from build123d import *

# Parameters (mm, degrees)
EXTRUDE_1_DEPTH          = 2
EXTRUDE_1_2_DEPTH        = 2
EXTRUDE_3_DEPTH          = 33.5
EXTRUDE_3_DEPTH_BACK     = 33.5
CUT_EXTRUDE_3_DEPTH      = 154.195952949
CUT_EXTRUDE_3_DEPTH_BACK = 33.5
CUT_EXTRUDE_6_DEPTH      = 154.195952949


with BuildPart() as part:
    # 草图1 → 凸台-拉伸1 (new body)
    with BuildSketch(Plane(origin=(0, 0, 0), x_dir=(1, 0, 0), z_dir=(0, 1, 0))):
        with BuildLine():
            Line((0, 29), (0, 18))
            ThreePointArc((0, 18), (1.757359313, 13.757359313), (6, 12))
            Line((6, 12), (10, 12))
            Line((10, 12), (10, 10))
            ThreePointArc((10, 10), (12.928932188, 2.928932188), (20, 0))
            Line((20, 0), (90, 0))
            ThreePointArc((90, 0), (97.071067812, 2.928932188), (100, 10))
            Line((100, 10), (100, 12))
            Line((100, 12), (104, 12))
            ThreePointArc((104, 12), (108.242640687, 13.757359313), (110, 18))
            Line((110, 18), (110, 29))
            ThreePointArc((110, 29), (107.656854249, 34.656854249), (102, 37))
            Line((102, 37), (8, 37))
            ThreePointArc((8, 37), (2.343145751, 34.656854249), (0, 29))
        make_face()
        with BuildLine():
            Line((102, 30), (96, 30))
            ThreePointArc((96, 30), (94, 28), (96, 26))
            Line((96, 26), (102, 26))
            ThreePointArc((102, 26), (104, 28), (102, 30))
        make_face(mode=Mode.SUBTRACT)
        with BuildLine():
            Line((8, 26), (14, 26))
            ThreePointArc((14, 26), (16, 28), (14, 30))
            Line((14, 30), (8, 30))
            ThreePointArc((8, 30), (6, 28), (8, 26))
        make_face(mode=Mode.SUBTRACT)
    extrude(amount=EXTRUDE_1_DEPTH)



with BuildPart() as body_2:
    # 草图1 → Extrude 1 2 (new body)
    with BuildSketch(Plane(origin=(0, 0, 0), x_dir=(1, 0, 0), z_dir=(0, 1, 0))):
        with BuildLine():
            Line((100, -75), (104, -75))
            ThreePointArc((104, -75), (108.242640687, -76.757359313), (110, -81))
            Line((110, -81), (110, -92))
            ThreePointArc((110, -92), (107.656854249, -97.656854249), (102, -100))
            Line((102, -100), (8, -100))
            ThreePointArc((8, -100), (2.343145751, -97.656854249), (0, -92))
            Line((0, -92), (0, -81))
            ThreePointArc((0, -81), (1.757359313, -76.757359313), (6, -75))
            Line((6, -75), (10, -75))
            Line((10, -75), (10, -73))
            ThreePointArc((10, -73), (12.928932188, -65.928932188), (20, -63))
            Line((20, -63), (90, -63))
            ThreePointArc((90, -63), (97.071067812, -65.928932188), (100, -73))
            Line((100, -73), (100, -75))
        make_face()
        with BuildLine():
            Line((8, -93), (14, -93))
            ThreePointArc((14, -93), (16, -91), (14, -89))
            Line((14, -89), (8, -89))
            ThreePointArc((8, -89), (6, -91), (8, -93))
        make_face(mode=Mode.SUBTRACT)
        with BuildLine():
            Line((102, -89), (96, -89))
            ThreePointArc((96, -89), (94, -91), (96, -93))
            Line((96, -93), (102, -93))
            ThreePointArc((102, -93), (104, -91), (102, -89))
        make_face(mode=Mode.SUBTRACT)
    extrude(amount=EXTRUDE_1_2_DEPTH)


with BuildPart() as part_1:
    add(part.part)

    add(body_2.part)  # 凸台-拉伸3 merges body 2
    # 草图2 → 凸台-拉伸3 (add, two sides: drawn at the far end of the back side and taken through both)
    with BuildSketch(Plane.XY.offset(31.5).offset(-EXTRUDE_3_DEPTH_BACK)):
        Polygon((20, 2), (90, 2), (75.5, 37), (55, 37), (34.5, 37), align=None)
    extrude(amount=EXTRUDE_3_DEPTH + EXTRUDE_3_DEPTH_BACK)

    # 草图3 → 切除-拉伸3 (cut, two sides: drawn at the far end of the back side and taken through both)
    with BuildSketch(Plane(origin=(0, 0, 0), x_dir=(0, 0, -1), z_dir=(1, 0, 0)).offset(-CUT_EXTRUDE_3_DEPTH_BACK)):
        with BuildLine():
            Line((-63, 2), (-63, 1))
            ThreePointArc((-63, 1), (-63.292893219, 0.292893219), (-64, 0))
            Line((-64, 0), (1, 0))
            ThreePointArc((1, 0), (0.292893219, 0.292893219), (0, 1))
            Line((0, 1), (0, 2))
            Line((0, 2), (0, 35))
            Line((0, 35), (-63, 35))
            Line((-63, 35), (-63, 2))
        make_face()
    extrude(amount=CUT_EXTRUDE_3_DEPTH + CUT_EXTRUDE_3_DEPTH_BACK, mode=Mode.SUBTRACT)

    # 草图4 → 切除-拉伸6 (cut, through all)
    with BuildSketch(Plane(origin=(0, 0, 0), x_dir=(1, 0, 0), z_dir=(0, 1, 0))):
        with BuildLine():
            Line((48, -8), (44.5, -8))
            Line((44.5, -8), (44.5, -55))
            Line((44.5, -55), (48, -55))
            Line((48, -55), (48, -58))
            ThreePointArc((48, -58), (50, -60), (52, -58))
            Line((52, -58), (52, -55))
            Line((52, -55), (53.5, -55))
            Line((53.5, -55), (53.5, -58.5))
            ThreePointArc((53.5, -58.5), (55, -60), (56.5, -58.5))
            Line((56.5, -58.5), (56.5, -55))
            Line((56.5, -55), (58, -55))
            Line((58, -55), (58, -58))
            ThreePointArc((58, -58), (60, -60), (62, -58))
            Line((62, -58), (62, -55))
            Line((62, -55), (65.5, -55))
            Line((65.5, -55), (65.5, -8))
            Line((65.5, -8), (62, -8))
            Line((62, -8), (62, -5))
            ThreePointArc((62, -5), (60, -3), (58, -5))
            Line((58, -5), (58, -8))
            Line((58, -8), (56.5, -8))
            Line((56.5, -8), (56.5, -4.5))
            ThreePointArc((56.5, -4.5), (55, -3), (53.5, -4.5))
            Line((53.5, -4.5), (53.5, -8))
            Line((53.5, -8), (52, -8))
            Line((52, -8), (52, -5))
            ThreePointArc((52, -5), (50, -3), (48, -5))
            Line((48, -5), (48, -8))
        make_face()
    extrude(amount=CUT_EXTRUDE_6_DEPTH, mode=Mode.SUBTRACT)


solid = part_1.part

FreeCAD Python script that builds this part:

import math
import FreeCAD as App
import Part
import Sketcher

V = App.Vector


def add_polygon(sketch, points):
    """Adds a closed chain of lines whose ends are joined by coincident constraints."""
    first, n = sketch.GeometryCount, len(points)
    for a, b in zip(points, points[1:] + points[:1]):
        sketch.addGeometry(Part.LineSegment(App.Vector(*a, 0), App.Vector(*b, 0)), False)
    for i in range(n):
        sketch.addConstraint(Sketcher.Constraint("Coincident", first + i, 2, first + (i + 1) % n, 1))

doc = App.newDocument("Part")
params = doc.addObject("Spreadsheet::Sheet", "Params")
for row, (alias, value) in enumerate([
    ("sketch1_radius", "6 mm"),
    ("sketch1_radius2", "10 mm"),
    ("sketch1_radius3", "8 mm"),
    ("sketch1_radius4", "2 mm"),
    ("sketch1_width", "4 mm"),
    ("pad1_length", "2 mm"),
    ("sketch2_radius", "10 mm"),
    ("sketch2_radius2", "6 mm"),
    ("sketch2_radius3", "8 mm"),
    ("sketch2_radius4", "2 mm"),
    ("sketch2_width", "4 mm"),
    ("pad2_length", "2 mm"),
    ("sketch3_width", "70 mm"),
    ("sketch3_width2", "41 mm"),
    ("pad3_length", "33.5 mm"),
    ("pad3_length2", "33.5 mm"),
    ("sketch4_radius", "1 mm"),
    ("sketch4_width", "34 mm"),
    ("sketch4_height", "65 mm"),
    ("sketch5_radius", "2 mm"),
    ("sketch5_radius2", "1.5 mm"),
    ("sketch5_height", "47 mm"),
    ("sketch5_height2", "3 mm"),
    ("sketch5_width", "3.5 mm"),
], start=1):
    params.set(f"A{row}", alias)
    params.set(f"B{row}", "=" + value)
    params.setAlias(f"B{row}", alias)

body = doc.addObject("PartDesign::Body", "Body")

sketch1 = doc.addObject("Sketcher::SketchObject", "Sketch")
body.addObject(sketch1)
sketch1.AttachmentSupport = (doc.XZ_Plane, [""])
sketch1.MapMode = "FlatFace"
sketch1.addGeometry(Part.LineSegment(V(0, -29, 0), V(0, -18, 0)), False)
sketch1.addGeometry(Part.ArcOfCircle(Part.Circle(V(6, -18, 0), V(0, 0, 1), 6), math.radians(90), math.radians(180)), False)
sketch1.addGeometry(Part.LineSegment(V(6, -12, 0), V(10, -12, 0)), False)
sketch1.addGeometry(Part.LineSegment(V(10, -12, 0), V(10, -10, 0)), False)
sketch1.addGeometry(Part.ArcOfCircle(Part.Circle(V(20, -10, 0), V(0, 0, 1), 10), math.radians(90), math.radians(180)), False)
sketch1.addGeometry(Part.LineSegment(V(20, 0, 0), V(90, 0, 0)), False)
sketch1.addGeometry(Part.ArcOfCircle(Part.Circle(V(90, -10, 0), V(0, 0, 1), 10), math.radians(0), math.radians(90)), False)
sketch1.addGeometry(Part.LineSegment(V(100, -10, 0), V(100, -12, 0)), False)
sketch1.addGeometry(Part.LineSegment(V(100, -12, 0), V(104, -12, 0)), False)
sketch1.addGeometry(Part.ArcOfCircle(Part.Circle(V(104, -18, 0), V(0, 0, 1), 6), math.radians(0), math.radians(90)), False)
sketch1.addGeometry(Part.LineSegment(V(110, -18, 0), V(110, -29, 0)), False)
sketch1.addGeometry(Part.ArcOfCircle(Part.Circle(V(102, -29, 0), V(0, 0, 1), 8), math.radians(-90), math.radians(0)), False)
sketch1.addGeometry(Part.LineSegment(V(102, -37, 0), V(8, -37, 0)), False)
sketch1.addGeometry(Part.ArcOfCircle(Part.Circle(V(8, -29, 0), V(0, 0, 1), 8), math.radians(-180), math.radians(-90)), False)
sketch1.addGeometry(Part.LineSegment(V(14, -26, 0), V(8, -26, 0)), False)
sketch1.addGeometry(Part.ArcOfCircle(Part.Circle(V(8, -28, 0), V(0, 0, 1), 2), math.radians(90), math.radians(270)), False)
sketch1.addGeometry(Part.LineSegment(V(8, -30, 0), V(14, -30, 0)), False)
sketch1.addGeometry(Part.ArcOfCircle(Part.Circle(V(14, -28, 0), V(0, 0, 1), 2), math.radians(-90), math.radians(90)), False)
sketch1.addGeometry(Part.LineSegment(V(96, -30, 0), V(102, -30, 0)), False)
sketch1.addGeometry(Part.ArcOfCircle(Part.Circle(V(102, -28, 0), V(0, 0, 1), 2), math.radians(-90), math.radians(90)), False)
sketch1.addGeometry(Part.LineSegment(V(102, -26, 0), V(96, -26, 0)), False)
sketch1.addGeometry(Part.ArcOfCircle(Part.Circle(V(96, -28, 0), V(0, 0, 1), 2), math.radians(90), math.radians(270)), False)
sketch1.addConstraint(Sketcher.Constraint("Tangent", 0, 2, 1, 2))
sketch1.addConstraint(Sketcher.Constraint("Tangent", 1, 1, 2, 1))
sketch1.addConstraint(Sketcher.Constraint("Coincident", 2, 2, 3, 1))
sketch1.addConstraint(Sketcher.Constraint("Tangent", 3, 2, 4, 2))
sketch1.addConstraint(Sketcher.Constraint("Tangent", 4, 1, 5, 1))
sketch1.addConstraint(Sketcher.Constraint("Tangent", 5, 2, 6, 2))
sketch1.addConstraint(Sketcher.Constraint("Tangent", 6, 1, 7, 1))
sketch1.addConstraint(Sketcher.Constraint("Coincident", 7, 2, 8, 1))
sketch1.addConstraint(Sketcher.Constraint("Tangent", 8, 2, 9, 2))
sketch1.addConstraint(Sketcher.Constraint("Tangent", 9, 1, 10, 1))
sketch1.addConstraint(Sketcher.Constraint("Tangent", 10, 2, 11, 2))
sketch1.addConstraint(Sketcher.Constraint("Tangent", 11, 1, 12, 1))
sketch1.addConstraint(Sketcher.Constraint("Tangent", 12, 2, 13, 2))
sketch1.addConstraint(Sketcher.Constraint("Tangent", 13, 1, 0, 1))
sketch1.addConstraint(Sketcher.Constraint("Tangent", 14, 2, 15, 1))
sketch1.addConstraint(Sketcher.Constraint("Tangent", 15, 2, 16, 1))
sketch1.addConstraint(Sketcher.Constraint("Tangent", 16, 2, 17, 1))
sketch1.addConstraint(Sketcher.Constraint("Tangent", 17, 2, 14, 1))
sketch1.addConstraint(Sketcher.Constraint("Tangent", 18, 2, 19, 1))
sketch1.addConstraint(Sketcher.Constraint("Tangent", 19, 2, 20, 1))
sketch1.addConstraint(Sketcher.Constraint("Tangent", 20, 2, 21, 1))
sketch1.addConstraint(Sketcher.Constraint("Tangent", 21, 2, 18, 1))
sketch1.addConstraint(Sketcher.Constraint("Vertical", 0))
sketch1.addConstraint(Sketcher.Constraint("Horizontal", 2))
sketch1.addConstraint(Sketcher.Constraint("Vertical", 3))
sketch1.addConstraint(Sketcher.Constraint("Horizontal", 5))
sketch1.addConstraint(Sketcher.Constraint("Vertical", 7))
sketch1.addConstraint(Sketcher.Constraint("Horizontal", 8))
sketch1.addConstraint(Sketcher.Constraint("Vertical", 10))
sketch1.addConstraint(Sketcher.Constraint("Horizontal", 12))
sketch1.addConstraint(Sketcher.Constraint("Horizontal", 14))
sketch1.addConstraint(Sketcher.Constraint("Horizontal", 16))
sketch1.addConstraint(Sketcher.Constraint("Horizontal", 18))
sketch1.addConstraint(Sketcher.Constraint("Horizontal", 20))
sketch1.addConstraint(Sketcher.Constraint("Equal", 4, 6))
sketch1.addConstraint(Sketcher.Constraint("Equal", 1, 9))
sketch1.addConstraint(Sketcher.Constraint("Equal", 11, 13))
sketch1.addConstraint(Sketcher.Constraint("Equal", 17, 19))
sketch1.addConstraint(Sketcher.Constraint("PointOnObject", 0, 2, -2))
sketch1.addConstraint(Sketcher.Constraint("PointOnObject", 4, 1, -1))
sketch1.addConstraint(Sketcher.Constraint("Horizontal", 1, 3, 9, 3))
sketch1.addConstraint(Sketcher.Constraint("Horizontal", 17, 3, 19, 3))
sketch1.addConstraint(Sketcher.Constraint("Vertical", 13, 3, 15, 3))
sketch1.addConstraint(Sketcher.Constraint("Vertical", 11, 3, 19, 3))
sketch1.addConstraint(Sketcher.Constraint("Equal", 2, 8))
sketch1.addConstraint(Sketcher.Constraint("Equal", 16, 18))
sketch1.addConstraint(Sketcher.Constraint("Radius", 1, 6.0))
sketch1.addConstraint(Sketcher.Constraint("Radius", 4, 10.0))
sketch1.addConstraint(Sketcher.Constraint("Radius", 11, 8.0))
sketch1.addConstraint(Sketcher.Constraint("Radius", 15, 2.0))
sketch1.addConstraint(Sketcher.Constraint("DistanceX", 2, 1, 2, 2, 4.0))
sketch1.addConstraint(Sketcher.Constraint("DistanceX", 5, 1, 5, 2, 70.0))
sketch1.addConstraint(Sketcher.Constraint("DistanceX", 14, 2, 14, 1, 6.0))
sketch1.addConstraint(Sketcher.Constraint("DistanceY", 0, 1, 0, 2, 11.0))
sketch1.addConstraint(Sketcher.Constraint("DistanceY", 3, 1, 3, 2, 2.0))
sketch1.addConstraint(Sketcher.Constraint("DistanceY", 15, 3, -1, 1, 28.0))
sketch1.setExpression("Constraints[46]", "Params.sketch1_radius")
sketch1.setExpression("Constraints[47]", "Params.sketch1_radius2")
sketch1.setExpression("Constraints[48]", "Params.sketch1_radius3")
sketch1.setExpression("Constraints[49]", "Params.sketch1_radius4")
sketch1.setExpression("Constraints[50]", "Params.sketch1_width")
pad1 = doc.addObject("PartDesign::Pad", "Pad")
body.addObject(pad1)
pad1.Profile = sketch1
pad1.setExpression("Length", "Params.pad1_length")
pad1.Reversed = True
body2 = doc.addObject("PartDesign::Body", "Body001")

sketch2 = doc.addObject("Sketcher::SketchObject", "Sketch001")
body2.addObject(sketch2)
sketch2.AttachmentSupport = (doc.getObject("XZ_Plane001"), [""])
sketch2.MapMode = "FlatFace"
sketch2.addGeometry(Part.LineSegment(V(104, 75, 0), V(100, 75, 0)), False)
sketch2.addGeometry(Part.LineSegment(V(100, 75, 0), V(100, 73, 0)), False)
sketch2.addGeometry(Part.ArcOfCircle(Part.Circle(V(90, 73, 0), V(0, 0, 1), 10), math.radians(-90), math.radians(0)), False)
sketch2.addGeometry(Part.LineSegment(V(90, 63, 0), V(20, 63, 0)), False)
sketch2.addGeometry(Part.ArcOfCircle(Part.Circle(V(20, 73, 0), V(0, 0, 1), 10), math.radians(180), math.radians(270)), False)
sketch2.addGeometry(Part.LineSegment(V(10, 73, 0), V(10, 75, 0)), False)
sketch2.addGeometry(Part.LineSegment(V(10, 75, 0), V(6, 75, 0)), False)
sketch2.addGeometry(Part.ArcOfCircle(Part.Circle(V(6, 81, 0), V(0, 0, 1), 6), math.radians(180), math.radians(270)), False)
sketch2.addGeometry(Part.LineSegment(V(0, 81, 0), V(0, 92, 0)), False)
sketch2.addGeometry(Part.ArcOfCircle(Part.Circle(V(8, 92, 0), V(0, 0, 1), 8), math.radians(90), math.radians(180)), False)
sketch2.addGeometry(Part.LineSegment(V(8, 100, 0), V(102, 100, 0)), False)
sketch2.addGeometry(Part.ArcOfCircle(Part.Circle(V(102, 92, 0), V(0, 0, 1), 8), math.radians(0), math.radians(90)), False)
sketch2.addGeometry(Part.LineSegment(V(110, 92, 0), V(110, 81, 0)), False)
sketch2.addGeometry(Part.ArcOfCircle(Part.Circle(V(104, 81, 0), V(0, 0, 1), 6), math.radians(-90), math.radians(0)), False)
sketch2.addGeometry(Part.ArcOfCircle(Part.Circle(V(102, 91, 0), V(0, 0, 1), 2), math.radians(-90), math.radians(90)), False)
sketch2.addGeometry(Part.LineSegment(V(102, 93, 0), V(96, 93, 0)), False)
sketch2.addGeometry(Part.ArcOfCircle(Part.Circle(V(96, 91, 0), V(0, 0, 1), 2), math.radians(90), math.radians(270)), False)
sketch2.addGeometry(Part.LineSegment(V(96, 89, 0), V(102, 89, 0)), False)
sketch2.addGeometry(Part.ArcOfCircle(Part.Circle(V(8, 91, 0), V(0, 0, 1), 2), math.radians(90), math.radians(270)), False)
sketch2.addGeometry(Part.LineSegment(V(8, 89, 0), V(14, 89, 0)), False)
sketch2.addGeometry(Part.ArcOfCircle(Part.Circle(V(14, 91, 0), V(0, 0, 1), 2), math.radians(-90), math.radians(90)), False)
sketch2.addGeometry(Part.LineSegment(V(14, 93, 0), V(8, 93, 0)), False)
sketch2.addConstraint(Sketcher.Constraint("Coincident", 0, 2, 1, 1))
sketch2.addConstraint(Sketcher.Constraint("Tangent", 1, 2, 2, 2))
sketch2.addConstraint(Sketcher.Constraint("Tangent", 2, 1, 3, 1))
sketch2.addConstraint(Sketcher.Constraint("Tangent", 3, 2, 4, 2))
sketch2.addConstraint(Sketcher.Constraint("Tangent", 4, 1, 5, 1))
sketch2.addConstraint(Sketcher.Constraint("Coincident", 5, 2, 6, 1))
sketch2.addConstraint(Sketcher.Constraint("Tangent", 6, 2, 7, 2))
sketch2.addConstraint(Sketcher.Constraint("Tangent", 7, 1, 8, 1))
sketch2.addConstraint(Sketcher.Constraint("Tangent", 8, 2, 9, 2))
sketch2.addConstraint(Sketcher.Constraint("Tangent", 9, 1, 10, 1))
sketch2.addConstraint(Sketcher.Constraint("Tangent", 10, 2, 11, 2))
sketch2.addConstraint(Sketcher.Constraint("Tangent", 11, 1, 12, 1))
sketch2.addConstraint(Sketcher.Constraint("Tangent", 12, 2, 13, 2))
sketch2.addConstraint(Sketcher.Constraint("Tangent", 13, 1, 0, 1))
sketch2.addConstraint(Sketcher.Constraint("Tangent", 14, 2, 15, 1))
sketch2.addConstraint(Sketcher.Constraint("Tangent", 15, 2, 16, 1))
sketch2.addConstraint(Sketcher.Constraint("Tangent", 16, 2, 17, 1))
sketch2.addConstraint(Sketcher.Constraint("Tangent", 17, 2, 14, 1))
sketch2.addConstraint(Sketcher.Constraint("Tangent", 18, 2, 19, 1))
sketch2.addConstraint(Sketcher.Constraint("Tangent", 19, 2, 20, 1))
sketch2.addConstraint(Sketcher.Constraint("Tangent", 20, 2, 21, 1))
sketch2.addConstraint(Sketcher.Constraint("Tangent", 21, 2, 18, 1))
sketch2.addConstraint(Sketcher.Constraint("Horizontal", 0))
sketch2.addConstraint(Sketcher.Constraint("Vertical", 1))
sketch2.addConstraint(Sketcher.Constraint("Horizontal", 3))
sketch2.addConstraint(Sketcher.Constraint("Vertical", 5))
sketch2.addConstraint(Sketcher.Constraint("Horizontal", 6))
sketch2.addConstraint(Sketcher.Constraint("Vertical", 8))
sketch2.addConstraint(Sketcher.Constraint("Horizontal", 10))
sketch2.addConstraint(Sketcher.Constraint("Vertical", 12))
sketch2.addConstraint(Sketcher.Constraint("Horizontal", 15))
sketch2.addConstraint(Sketcher.Constraint("Horizontal", 17))
sketch2.addConstraint(Sketcher.Constraint("Horizontal", 19))
sketch2.addConstraint(Sketcher.Constraint("Horizontal", 21))
sketch2.addConstraint(Sketcher.Constraint("Equal", 2, 4))
sketch2.addConstraint(Sketcher.Constraint("Equal", 9, 11))
sketch2.addConstraint(Sketcher.Constraint("Equal", 7, 13))
sketch2.addConstraint(Sketcher.Constraint("Equal", 16, 18))
sketch2.addConstraint(Sketcher.Constraint("PointOnObject", 7, 1, -2))
sketch2.addConstraint(Sketcher.Constraint("Horizontal", 7, 3, 13, 3))
sketch2.addConstraint(Sketcher.Constraint("Horizontal", 16, 3, 18, 3))
sketch2.addConstraint(Sketcher.Constraint("Vertical", 11, 3, 14, 3))
sketch2.addConstraint(Sketcher.Constraint("Vertical", 9, 3, 18, 3))
sketch2.addConstraint(Sketcher.Constraint("Equal", 0, 6))
sketch2.addConstraint(Sketcher.Constraint("Equal", 17, 19))
sketch2.addConstraint(Sketcher.Constraint("Radius", 2, 10.0))
sketch2.addConstraint(Sketcher.Constraint("Radius", 7, 6.0))
sketch2.addConstraint(Sketcher.Constraint("Radius", 9, 8.0))
sketch2.addConstraint(Sketcher.Constraint("Radius", 14, 2.0))
sketch2.addConstraint(Sketcher.Constraint("DistanceX", 0, 2, 0, 1, 4.0))
sketch2.addConstraint(Sketcher.Constraint("DistanceX", 3, 2, 3, 1, 70.0))
sketch2.addConstraint(Sketcher.Constraint("DistanceX", 15, 2, 15, 1, 6.0))
sketch2.addConstraint(Sketcher.Constraint("DistanceY", 1, 2, 1, 1, 2.0))
sketch2.addConstraint(Sketcher.Constraint("DistanceY", 8, 1, 8, 2, 11.0))
sketch2.addConstraint(Sketcher.Constraint("DistanceY", -1, 1, 2, 3, 73.0))
sketch2.addConstraint(Sketcher.Constraint("DistanceY", -1, 1, 14, 3, 91.0))
sketch2.setExpression("Constraints[45]", "Params.sketch2_radius")
sketch2.setExpression("Constraints[46]", "Params.sketch2_radius2")
sketch2.setExpression("Constraints[47]", "Params.sketch2_radius3")
sketch2.setExpression("Constraints[48]", "Params.sketch2_radius4")
sketch2.setExpression("Constraints[49]", "Params.sketch2_width")
pad2 = doc.addObject("PartDesign::Pad", "Pad001")
body2.addObject(pad2)
pad2.Profile = sketch2
pad2.setExpression("Length", "Params.pad2_length")
pad2.Reversed = True
body.AllowCompound = True
doc.recompute()

boolean = doc.addObject("PartDesign::Boolean", "Boolean")
body.addObject(boolean)
boolean.Type = "Fuse"
boolean.addObjects([body2])

sketch3 = doc.addObject("Sketcher::SketchObject", "Sketch002")
body.addObject(sketch3)
sketch3.AttachmentSupport = (doc.XY_Plane, [""])
sketch3.MapMode = "FlatFace"
sketch3.AttachmentOffset = App.Placement(V(0, 0, 31.5), App.Rotation())
add_polygon(sketch3, [(20, 2), (90, 2), (76, 37), (34, 37)])
sketch3.addConstraint(Sketcher.Constraint("Horizontal", 0))
sketch3.addConstraint(Sketcher.Constraint("Horizontal", 2))
sketch3.addConstraint(Sketcher.Constraint("Equal", 1, 3))
sketch3.addConstraint(Sketcher.Constraint("DistanceX", 0, 1, 0, 2, 70.0))
sketch3.addConstraint(Sketcher.Constraint("DistanceX", 2, 2, 2, 1, 41.0))
sketch3.addConstraint(Sketcher.Constraint("DistanceX", -1, 1, 0, 2, 90.0))
sketch3.addConstraint(Sketcher.Constraint("DistanceY", -1, 1, 0, 2, 2.0))
sketch3.addConstraint(Sketcher.Constraint("DistanceY", -1, 1, 1, 2, 37.0))
sketch3.setExpression("Constraints[7]", "Params.sketch3_width")
sketch3.setExpression("Constraints[8]", "Params.sketch3_width2")
pad3 = doc.addObject("PartDesign::Pad", "Pad002")
body.addObject(pad3)
pad3.Profile = sketch3
pad3.Type = "TwoLengths"
pad3.setExpression("Length", "Params.pad3_length")
pad3.setExpression("Length2", "Params.pad3_length2")

sketch4 = doc.addObject("Sketcher::SketchObject", "Sketch003")
body.addObject(sketch4)
sketch4.AttachmentSupport = (doc.YZ_Plane, [""])
sketch4.MapMode = "FlatFace"
sketch4.addGeometry(Part.ArcOfCircle(Part.Circle(V(1, 64, 0), V(0, 0, 1), 1), math.radians(-180), math.radians(-90)), False)
sketch4.addGeometry(Part.LineSegment(V(0, 64, 0), V(0, -1, 0)), False)
sketch4.addGeometry(Part.ArcOfCircle(Part.Circle(V(1, -1, 0), V(0, 0, 1), 1), math.radians(90), math.radians(180)), False)
sketch4.addGeometry(Part.LineSegment(V(1, 0, 0), V(35, 0, 0)), False)
sketch4.addGeometry(Part.LineSegment(V(35, 0, 0), V(35, 63, 0)), False)
sketch4.addGeometry(Part.LineSegment(V(35, 63, 0), V(1, 63, 0)), False)
sketch4.addConstraint(Sketcher.Constraint("Tangent", 0, 1, 1, 1))
sketch4.addConstraint(Sketcher.Constraint("Tangent", 1, 2, 2, 2))
sketch4.addConstraint(Sketcher.Constraint("Tangent", 2, 1, 3, 1))
sketch4.addConstraint(Sketcher.Constraint("Coincident", 3, 2, 4, 1))
sketch4.addConstraint(Sketcher.Constraint("Coincident", 4, 2, 5, 1))
sketch4.addConstraint(Sketcher.Constraint("Tangent", 5, 2, 0, 2))
sketch4.addConstraint(Sketcher.Constraint("Vertical", 1))
sketch4.addConstraint(Sketcher.Constraint("Horizontal", 3))
sketch4.addConstraint(Sketcher.Constraint("Vertical", 4))
sketch4.addConstraint(Sketcher.Constraint("Horizontal", 5))
sketch4.addConstraint(Sketcher.Constraint("Equal", 0, 2))
sketch4.addConstraint(Sketcher.Constraint("PointOnObject", 0, 1, -2))
sketch4.addConstraint(Sketcher.Constraint("PointOnObject", 2, 1, -1))
sketch4.addConstraint(Sketcher.Constraint("Radius", 0, 1.0))
sketch4.addConstraint(Sketcher.Constraint("DistanceX", 3, 1, 3, 2, 34.0))
sketch4.addConstraint(Sketcher.Constraint("DistanceY", 1, 2, 1, 1, 65.0))
sketch4.setExpression("Constraints[13]", "Params.sketch4_radius")
sketch4.setExpression("Constraints[14]", "Params.sketch4_width")
sketch4.setExpression("Constraints[15]", "Params.sketch4_height")
pocket1 = doc.addObject("PartDesign::Pocket", "Pocket")
body.addObject(pocket1)
pocket1.Profile = sketch4
pocket1.Type = "ThroughAll"
pocket1.Midplane = True

sketch5 = doc.addObject("Sketcher::SketchObject", "Sketch004")
body.addObject(sketch5)
sketch5.AttachmentSupport = (doc.XZ_Plane, [""])
sketch5.MapMode = "FlatFace"
sketch5.addGeometry(Part.LineSegment(V(48, 8, 0), V(44.5, 8, 0)), False)
sketch5.addGeometry(Part.LineSegment(V(44.5, 8, 0), V(44.5, 55, 0)), False)
sketch5.addGeometry(Part.LineSegment(V(44.5, 55, 0), V(48, 55, 0)), False)
sketch5.addGeometry(Part.LineSegment(V(48, 55, 0), V(48, 58, 0)), False)
sketch5.addGeometry(Part.ArcOfCircle(Part.Circle(V(50, 58, 0), V(0, 0, 1), 2), math.radians(0), math.radians(180)), False)
sketch5.addGeometry(Part.LineSegment(V(52, 58, 0), V(52, 55, 0)), False)
sketch5.addGeometry(Part.LineSegment(V(52, 55, 0), V(53.5, 55, 0)), False)
sketch5.addGeometry(Part.LineSegment(V(53.5, 55, 0), V(53.5, 58.5, 0)), False)
sketch5.addGeometry(Part.ArcOfCircle(Part.Circle(V(55, 58.5, 0), V(0, 0, 1), 1.5), math.radians(0), math.radians(180)), False)
sketch5.addGeometry(Part.LineSegment(V(56.5, 58.5, 0), V(56.5, 55, 0)), False)
sketch5.addGeometry(Part.LineSegment(V(56.5, 55, 0), V(58, 55, 0)), False)
sketch5.addGeometry(Part.LineSegment(V(58, 55, 0), V(58, 58, 0)), False)
sketch5.addGeometry(Part.ArcOfCircle(Part.Circle(V(60, 58, 0), V(0, 0, 1), 2), math.radians(0), math.radians(180)), False)
sketch5.addGeometry(Part.LineSegment(V(62, 58, 0), V(62, 55, 0)), False)
sketch5.addGeometry(Part.LineSegment(V(62, 55, 0), V(65.5, 55, 0)), False)
sketch5.addGeometry(Part.LineSegment(V(65.5, 55, 0), V(65.5, 8, 0)), False)
sketch5.addGeometry(Part.LineSegment(V(65.5, 8, 0), V(62, 8, 0)), False)
sketch5.addGeometry(Part.LineSegment(V(62, 8, 0), V(62, 5, 0)), False)
sketch5.addGeometry(Part.ArcOfCircle(Part.Circle(V(60, 5, 0), V(0, 0, 1), 2), math.radians(180), math.radians(360)), False)
sketch5.addGeometry(Part.LineSegment(V(58, 5, 0), V(58, 8, 0)), False)
sketch5.addGeometry(Part.LineSegment(V(58, 8, 0), V(56.5, 8, 0)), False)
sketch5.addGeometry(Part.LineSegment(V(56.5, 8, 0), V(56.5, 4.5, 0)), False)
sketch5.addGeometry(Part.ArcOfCircle(Part.Circle(V(55, 4.5, 0), V(0, 0, 1), 1.5), math.radians(180), math.radians(360)), False)
sketch5.addGeometry(Part.LineSegment(V(53.5, 4.5, 0), V(53.5, 8, 0)), False)
sketch5.addGeometry(Part.LineSegment(V(53.5, 8, 0), V(52, 8, 0)), False)
sketch5.addGeometry(Part.LineSegment(V(52, 8, 0), V(52, 5, 0)), False)
sketch5.addGeometry(Part.ArcOfCircle(Part.Circle(V(50, 5, 0), V(0, 0, 1), 2), math.radians(180), math.radians(360)), False)
sketch5.addGeometry(Part.LineSegment(V(48, 5, 0), V(48, 8, 0)), False)
sketch5.addConstraint(Sketcher.Constraint("Coincident", 0, 2, 1, 1))
sketch5.addConstraint(Sketcher.Constraint("Coincident", 1, 2, 2, 1))
sketch5.addConstraint(Sketcher.Constraint("Coincident", 2, 2, 3, 1))
sketch5.addConstraint(Sketcher.Constraint("Tangent", 3, 2, 4, 2))
sketch5.addConstraint(Sketcher.Constraint("Tangent", 4, 1, 5, 1))
sketch5.addConstraint(Sketcher.Constraint("Coincident", 5, 2, 6, 1))
sketch5.addConstraint(Sketcher.Constraint("Coincident", 6, 2, 7, 1))
sketch5.addConstraint(Sketcher.Constraint("Tangent", 7, 2, 8, 2))
sketch5.addConstraint(Sketcher.Constraint("Tangent", 8, 1, 9, 1))
sketch5.addConstraint(Sketcher.Constraint("Coincident", 9, 2, 10, 1))
sketch5.addConstraint(Sketcher.Constraint("Coincident", 10, 2, 11, 1))
sketch5.addConstraint(Sketcher.Constraint("Tangent", 11, 2, 12, 2))
sketch5.addConstraint(Sketcher.Constraint("Tangent", 12, 1, 13, 1))
sketch5.addConstraint(Sketcher.Constraint("Coincident", 13, 2, 14, 1))
sketch5.addConstraint(Sketcher.Constraint("Coincident", 14, 2, 15, 1))
sketch5.addConstraint(Sketcher.Constraint("Coincident", 15, 2, 16, 1))
sketch5.addConstraint(Sketcher.Constraint("Coincident", 16, 2, 17, 1))
sketch5.addConstraint(Sketcher.Constraint("Tangent", 17, 2, 18, 2))
sketch5.addConstraint(Sketcher.Constraint("Tangent", 18, 1, 19, 1))
sketch5.addConstraint(Sketcher.Constraint("Coincident", 19, 2, 20, 1))
sketch5.addConstraint(Sketcher.Constraint("Coincident", 20, 2, 21, 1))
sketch5.addConstraint(Sketcher.Constraint("Tangent", 21, 2, 22, 2))
sketch5.addConstraint(Sketcher.Constraint("Tangent", 22, 1, 23, 1))
sketch5.addConstraint(Sketcher.Constraint("Coincident", 23, 2, 24, 1))
sketch5.addConstraint(Sketcher.Constraint("Coincident", 24, 2, 25, 1))
sketch5.addConstraint(Sketcher.Constraint("Tangent", 25, 2, 26, 2))
sketch5.addConstraint(Sketcher.Constraint("Tangent", 26, 1, 27, 1))
sketch5.addConstraint(Sketcher.Constraint("Coincident", 27, 2, 0, 1))
sketch5.addConstraint(Sketcher.Constraint("Horizontal", 0))
sketch5.addConstraint(Sketcher.Constraint("Vertical", 1))
sketch5.addConstraint(Sketcher.Constraint("Horizontal", 2))
sketch5.addConstraint(Sketcher.Constraint("Vertical", 3))
sketch5.addConstraint(Sketcher.Constraint("Vertical", 5))
sketch5.addConstraint(Sketcher.Constraint("Horizontal", 6))
sketch5.addConstraint(Sketcher.Constraint("Vertical", 7))
sketch5.addConstraint(Sketcher.Constraint("Vertical", 9))
sketch5.addConstraint(Sketcher.Constraint("Horizontal", 10))
sketch5.addConstraint(Sketcher.Constraint("Vertical", 11))
sketch5.addConstraint(Sketcher.Constraint("Vertical", 13))
sketch5.addConstraint(Sketcher.Constraint("Horizontal", 14))
sketch5.addConstraint(Sketcher.Constraint("Vertical", 15))
sketch5.addConstraint(Sketcher.Constraint("Horizontal", 16))
sketch5.addConstraint(Sketcher.Constraint("Vertical", 17))
sketch5.addConstraint(Sketcher.Constraint("Vertical", 19))
sketch5.addConstraint(Sketcher.Constraint("Horizontal", 20))
sketch5.addConstraint(Sketcher.Constraint("Vertical", 21))
sketch5.addConstraint(Sketcher.Constraint("Vertical", 23))
sketch5.addConstraint(Sketcher.Constraint("Horizontal", 24))
sketch5.addConstraint(Sketcher.Constraint("Vertical", 25))
sketch5.addConstraint(Sketcher.Constraint("Vertical", 27))
sketch5.addConstraint(Sketcher.Constraint("Equal", 4, 12))
sketch5.addConstraint(Sketcher.Constraint("Equal", 12, 18))
sketch5.addConstraint(Sketcher.Constraint("Equal", 8, 22))
sketch5.addConstraint(Sketcher.Constraint("Equal", 18, 26))
sketch5.addConstraint(Sketcher.Constraint("Horizontal", 4, 3, 12, 3))
sketch5.addConstraint(Sketcher.Constraint("Horizontal", 18, 3, 26, 3))
sketch5.addConstraint(Sketcher.Constraint("Horizontal", 2, 2, 5, 2))
sketch5.addConstraint(Sketcher.Constraint("Horizontal", 6, 2, 9, 2))
sketch5.addConstraint(Sketcher.Constraint("Horizontal", 10, 2, 13, 2))
sketch5.addConstraint(Sketcher.Constraint("Horizontal", 0, 2, 15, 2))
sketch5.addConstraint(Sketcher.Constraint("Horizontal", 16, 2, 19, 2))
sketch5.addConstraint(Sketcher.Constraint("Horizontal", 20, 2, 23, 2))
sketch5.addConstraint(Sketcher.Constraint("Vertical", 12, 3, 18, 3))
sketch5.addConstraint(Sketcher.Constraint("Vertical", 8, 3, 22, 3))
sketch5.addConstraint(Sketcher.Constraint("Vertical", 4, 3, 26, 3))
sketch5.addConstraint(Sketcher.Constraint("Equal", 6, 10))
sketch5.addConstraint(Sketcher.Constraint("Equal", 2, 14))
sketch5.addConstraint(Sketcher.Constraint("Equal", 16, 7))
sketch5.addConstraint(Sketcher.Constraint("Equal", 13, 17))
sketch5.addConstraint(Sketcher.Constraint("Equal", 9, 21))
sketch5.addConstraint(Sketcher.Constraint("Radius", 4, 2.0))
sketch5.addConstraint(Sketcher.Constraint("Radius", 8, 1.5))
sketch5.addConstraint(Sketcher.Constraint("DistanceY", 1, 1, 1, 2, 47.0))
sketch5.addConstraint(Sketcher.Constraint("DistanceY", 3, 1, 3, 2, 3.0))
sketch5.addConstraint(Sketcher.Constraint("DistanceX", 0, 2, 0, 1, 3.5))
sketch5.addConstraint(Sketcher.Constraint("DistanceX", 6, 1, 6, 2, 1.5))
sketch5.addConstraint(Sketcher.Constraint("DistanceX", -1, 1, 4, 3, 50.0))
sketch5.addConstraint(Sketcher.Constraint("DistanceY", -1, 1, 4, 3, 58.0))
sketch5.setExpression("Constraints[70]", "Params.sketch5_radius")
sketch5.setExpression("Constraints[71]", "Params.sketch5_radius2")
sketch5.setExpression("Constraints[72]", "Params.sketch5_height")
sketch5.setExpression("Constraints[73]", "Params.sketch5_height2")
sketch5.setExpression("Constraints[74]", "Params.sketch5_width")
pocket2 = doc.addObject("PartDesign::Pocket", "Pocket001")
body.addObject(pocket2)
pocket2.Profile = sketch5
pocket2.Type = "ThroughAll"

doc.recompute()
